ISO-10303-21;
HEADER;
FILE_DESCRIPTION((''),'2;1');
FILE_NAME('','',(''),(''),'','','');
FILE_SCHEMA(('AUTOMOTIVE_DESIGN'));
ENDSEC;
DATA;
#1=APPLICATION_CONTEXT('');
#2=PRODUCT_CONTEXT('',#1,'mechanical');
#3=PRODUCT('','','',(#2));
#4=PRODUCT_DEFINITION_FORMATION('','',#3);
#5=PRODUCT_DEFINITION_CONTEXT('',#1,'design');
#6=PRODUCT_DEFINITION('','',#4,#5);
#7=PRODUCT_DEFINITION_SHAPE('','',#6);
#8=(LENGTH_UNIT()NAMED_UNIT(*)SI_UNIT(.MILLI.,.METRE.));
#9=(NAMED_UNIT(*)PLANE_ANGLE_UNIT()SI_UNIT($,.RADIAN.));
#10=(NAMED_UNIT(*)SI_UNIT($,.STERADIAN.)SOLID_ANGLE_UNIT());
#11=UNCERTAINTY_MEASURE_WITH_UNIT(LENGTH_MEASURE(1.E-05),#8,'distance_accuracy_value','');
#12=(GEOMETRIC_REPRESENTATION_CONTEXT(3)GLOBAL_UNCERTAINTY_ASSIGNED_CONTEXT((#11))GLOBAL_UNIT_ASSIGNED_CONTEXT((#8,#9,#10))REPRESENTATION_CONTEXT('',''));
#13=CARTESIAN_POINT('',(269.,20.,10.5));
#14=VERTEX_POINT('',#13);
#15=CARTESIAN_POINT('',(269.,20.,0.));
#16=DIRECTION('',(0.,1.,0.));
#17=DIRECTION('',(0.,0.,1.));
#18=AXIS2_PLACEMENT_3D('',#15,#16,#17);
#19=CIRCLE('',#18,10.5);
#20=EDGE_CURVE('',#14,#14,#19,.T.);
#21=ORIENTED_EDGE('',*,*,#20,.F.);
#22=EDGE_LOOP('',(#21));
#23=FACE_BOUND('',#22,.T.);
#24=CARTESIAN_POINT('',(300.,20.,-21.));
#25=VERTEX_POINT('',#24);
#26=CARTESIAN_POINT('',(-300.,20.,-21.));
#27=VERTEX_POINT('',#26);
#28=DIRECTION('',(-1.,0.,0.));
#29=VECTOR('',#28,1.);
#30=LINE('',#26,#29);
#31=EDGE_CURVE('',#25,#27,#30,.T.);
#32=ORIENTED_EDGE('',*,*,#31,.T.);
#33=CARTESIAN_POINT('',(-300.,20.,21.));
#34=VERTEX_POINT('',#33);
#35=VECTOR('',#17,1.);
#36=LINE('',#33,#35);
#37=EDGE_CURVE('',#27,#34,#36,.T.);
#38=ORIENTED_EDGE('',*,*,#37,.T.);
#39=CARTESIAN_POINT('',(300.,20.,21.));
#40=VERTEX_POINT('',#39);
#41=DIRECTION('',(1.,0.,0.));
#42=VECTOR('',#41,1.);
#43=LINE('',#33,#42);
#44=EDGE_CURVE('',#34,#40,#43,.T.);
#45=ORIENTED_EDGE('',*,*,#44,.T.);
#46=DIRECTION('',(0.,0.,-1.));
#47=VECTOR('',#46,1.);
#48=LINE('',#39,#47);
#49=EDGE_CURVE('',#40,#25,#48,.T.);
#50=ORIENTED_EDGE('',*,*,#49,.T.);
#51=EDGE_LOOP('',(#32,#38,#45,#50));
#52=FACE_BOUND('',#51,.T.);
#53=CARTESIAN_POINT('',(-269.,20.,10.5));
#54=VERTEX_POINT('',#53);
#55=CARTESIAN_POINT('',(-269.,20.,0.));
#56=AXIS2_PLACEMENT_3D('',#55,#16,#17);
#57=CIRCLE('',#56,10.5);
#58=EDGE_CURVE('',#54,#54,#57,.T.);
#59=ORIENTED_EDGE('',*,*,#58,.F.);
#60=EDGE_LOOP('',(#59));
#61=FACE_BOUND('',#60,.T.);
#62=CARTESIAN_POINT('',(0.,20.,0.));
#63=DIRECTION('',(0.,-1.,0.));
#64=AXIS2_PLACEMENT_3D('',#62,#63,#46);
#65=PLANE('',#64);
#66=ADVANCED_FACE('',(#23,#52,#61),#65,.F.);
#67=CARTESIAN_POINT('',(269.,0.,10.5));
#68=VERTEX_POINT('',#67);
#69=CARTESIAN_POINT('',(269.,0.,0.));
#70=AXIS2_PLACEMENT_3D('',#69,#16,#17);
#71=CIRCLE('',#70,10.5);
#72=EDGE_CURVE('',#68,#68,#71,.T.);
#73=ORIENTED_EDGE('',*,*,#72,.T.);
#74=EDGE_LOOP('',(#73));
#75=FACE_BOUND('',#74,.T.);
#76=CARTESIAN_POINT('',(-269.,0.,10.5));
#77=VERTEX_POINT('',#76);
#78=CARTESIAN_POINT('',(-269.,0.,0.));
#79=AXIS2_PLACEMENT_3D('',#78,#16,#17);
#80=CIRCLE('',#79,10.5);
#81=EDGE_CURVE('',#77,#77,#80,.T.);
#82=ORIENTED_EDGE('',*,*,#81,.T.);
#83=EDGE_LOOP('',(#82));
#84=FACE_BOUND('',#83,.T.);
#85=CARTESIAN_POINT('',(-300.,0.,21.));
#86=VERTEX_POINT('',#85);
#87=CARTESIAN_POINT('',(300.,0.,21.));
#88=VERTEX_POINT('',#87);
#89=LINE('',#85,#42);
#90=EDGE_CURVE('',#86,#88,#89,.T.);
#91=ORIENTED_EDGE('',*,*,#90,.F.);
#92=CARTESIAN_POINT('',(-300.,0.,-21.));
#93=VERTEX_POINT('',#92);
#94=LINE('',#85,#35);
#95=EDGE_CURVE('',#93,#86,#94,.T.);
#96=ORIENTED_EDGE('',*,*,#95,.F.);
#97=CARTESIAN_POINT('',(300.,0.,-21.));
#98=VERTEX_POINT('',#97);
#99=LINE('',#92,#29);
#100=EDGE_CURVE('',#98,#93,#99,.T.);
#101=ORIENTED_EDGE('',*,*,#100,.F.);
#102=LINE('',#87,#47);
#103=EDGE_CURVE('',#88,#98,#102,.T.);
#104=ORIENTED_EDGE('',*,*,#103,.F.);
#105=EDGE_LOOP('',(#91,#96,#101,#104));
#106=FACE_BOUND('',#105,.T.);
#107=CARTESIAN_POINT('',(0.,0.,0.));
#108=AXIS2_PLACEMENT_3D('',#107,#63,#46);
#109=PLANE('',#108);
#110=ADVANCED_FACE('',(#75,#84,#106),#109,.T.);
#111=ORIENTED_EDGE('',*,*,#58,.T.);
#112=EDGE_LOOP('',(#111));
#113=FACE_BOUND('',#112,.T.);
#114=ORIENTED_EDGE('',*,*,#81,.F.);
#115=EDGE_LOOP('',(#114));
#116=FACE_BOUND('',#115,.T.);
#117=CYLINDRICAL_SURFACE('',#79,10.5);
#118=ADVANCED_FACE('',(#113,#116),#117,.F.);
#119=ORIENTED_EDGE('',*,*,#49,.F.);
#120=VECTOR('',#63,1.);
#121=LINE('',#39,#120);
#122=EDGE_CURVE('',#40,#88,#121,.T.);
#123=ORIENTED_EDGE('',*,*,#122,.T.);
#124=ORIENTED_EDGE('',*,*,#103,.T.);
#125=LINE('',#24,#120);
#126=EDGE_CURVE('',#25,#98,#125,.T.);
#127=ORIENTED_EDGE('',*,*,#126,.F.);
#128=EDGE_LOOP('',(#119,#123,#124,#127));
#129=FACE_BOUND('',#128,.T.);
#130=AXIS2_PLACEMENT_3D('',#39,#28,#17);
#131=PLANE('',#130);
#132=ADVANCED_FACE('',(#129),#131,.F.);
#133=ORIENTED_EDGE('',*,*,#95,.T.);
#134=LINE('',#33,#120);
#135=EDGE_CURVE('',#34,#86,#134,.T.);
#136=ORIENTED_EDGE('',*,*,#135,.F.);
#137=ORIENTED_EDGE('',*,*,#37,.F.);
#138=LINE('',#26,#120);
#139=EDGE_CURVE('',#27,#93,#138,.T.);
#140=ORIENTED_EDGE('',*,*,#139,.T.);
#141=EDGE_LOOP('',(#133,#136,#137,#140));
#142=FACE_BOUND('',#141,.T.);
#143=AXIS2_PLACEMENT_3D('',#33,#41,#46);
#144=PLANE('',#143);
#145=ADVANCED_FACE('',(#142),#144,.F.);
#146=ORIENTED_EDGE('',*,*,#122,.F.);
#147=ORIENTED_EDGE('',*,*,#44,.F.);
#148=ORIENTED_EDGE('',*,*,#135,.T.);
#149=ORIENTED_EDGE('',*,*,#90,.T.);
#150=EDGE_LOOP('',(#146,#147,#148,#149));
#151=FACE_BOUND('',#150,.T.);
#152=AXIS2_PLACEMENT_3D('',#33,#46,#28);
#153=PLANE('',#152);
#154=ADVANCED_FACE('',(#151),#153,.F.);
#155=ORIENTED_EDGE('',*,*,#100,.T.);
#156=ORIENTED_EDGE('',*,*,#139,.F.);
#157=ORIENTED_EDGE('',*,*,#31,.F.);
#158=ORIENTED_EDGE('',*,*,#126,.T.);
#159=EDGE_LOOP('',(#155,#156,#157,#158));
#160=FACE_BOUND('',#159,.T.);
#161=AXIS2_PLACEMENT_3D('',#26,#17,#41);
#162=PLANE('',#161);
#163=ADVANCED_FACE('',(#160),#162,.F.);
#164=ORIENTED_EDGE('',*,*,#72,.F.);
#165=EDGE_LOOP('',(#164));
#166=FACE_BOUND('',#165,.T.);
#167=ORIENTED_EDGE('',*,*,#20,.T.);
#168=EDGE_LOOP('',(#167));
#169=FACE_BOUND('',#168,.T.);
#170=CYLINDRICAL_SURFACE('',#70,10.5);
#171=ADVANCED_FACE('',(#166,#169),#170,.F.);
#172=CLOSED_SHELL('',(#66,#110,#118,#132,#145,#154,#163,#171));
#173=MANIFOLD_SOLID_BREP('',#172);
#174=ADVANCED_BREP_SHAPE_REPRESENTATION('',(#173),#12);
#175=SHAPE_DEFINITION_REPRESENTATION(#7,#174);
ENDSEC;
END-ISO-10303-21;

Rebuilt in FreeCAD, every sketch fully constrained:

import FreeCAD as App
import Part
import Sketcher
from FreeCAD import Vector

doc = App.newDocument("Part")
body = doc.addObject("PartDesign::Body", "Body")

# Sketch on XZ plane
sketch1 = body.newObject("Sketcher::SketchObject", "Sketch")
sketch1.AttachmentSupport = (doc.getObject("XZ_Plane"), [""])
sketch1.MapMode = "FlatFace"
sketch1.addGeometry([
    Part.LineSegment(Vector(-300, -21, 0), Vector(-300, 21, 0)),
    Part.LineSegment(Vector(-300, 21, 0), Vector(300, 21, 0)),
    Part.LineSegment(Vector(300, 21, 0), Vector(300, -21, 0)),
    Part.LineSegment(Vector(300, -21, 0), Vector(-300, -21, 0)),
], False)
sketch1.addConstraint([
    Sketcher.Constraint("Coincident", 0, 2, 1, 1),
    Sketcher.Constraint("Coincident", 1, 2, 2, 1),
    Sketcher.Constraint("Coincident", 2, 2, 3, 1),
    Sketcher.Constraint("Coincident", 3, 2, 0, 1),
    Sketcher.Constraint("Vertical", 0),
    Sketcher.Constraint("Horizontal", 1),
    Sketcher.Constraint("Vertical", 2),
    Sketcher.Constraint("Horizontal", 3),
    Sketcher.Constraint("Symmetric", 0, 2, 2, 2, -1, 1),
    Sketcher.Constraint("DistanceX", 1, 1, 1, 2, 600.0),
    Sketcher.Constraint("DistanceY", 0, 1, 0, 2, 42.0),
])
pad1 = body.newObject("PartDesign::Pad", "Pad")
pad1.Profile = sketch1
pad1.Length = 20
pad1.Reversed = True

# Sketch on XZ plane
sketch2 = body.newObject("Sketcher::SketchObject", "Sketch001")
sketch2.AttachmentSupport = (doc.getObject("XZ_Plane"), [""])
sketch2.MapMode = "FlatFace"
sketch2.AttachmentOffset = App.Placement(Vector(0, 0, -20), App.Rotation())
sketch2.addGeometry([
    Part.Circle(Vector(-269, 0, 0), Vector(0, 0, 1), 10.5),
    Part.Circle(Vector(269, 0, 0), Vector(0, 0, 1), 10.5),
], False)
sketch2.addConstraint([
    Sketcher.Constraint("Equal", 0, 1),
    Sketcher.Constraint("Symmetric", 0, 3, 1, 3, -1, 1),
    Sketcher.Constraint("PointOnObject", 0, 3, -1),
    Sketcher.Constraint("Diameter", 0, 21.0),
    Sketcher.Constraint("DistanceX", 0, 3, -1, 1, 269.0),
])
pocket1 = body.newObject("PartDesign::Pocket", "Pocket")
pocket1.Profile = sketch2
pocket1.Length = 20
pocket1.Reversed = True

doc.recompute()
